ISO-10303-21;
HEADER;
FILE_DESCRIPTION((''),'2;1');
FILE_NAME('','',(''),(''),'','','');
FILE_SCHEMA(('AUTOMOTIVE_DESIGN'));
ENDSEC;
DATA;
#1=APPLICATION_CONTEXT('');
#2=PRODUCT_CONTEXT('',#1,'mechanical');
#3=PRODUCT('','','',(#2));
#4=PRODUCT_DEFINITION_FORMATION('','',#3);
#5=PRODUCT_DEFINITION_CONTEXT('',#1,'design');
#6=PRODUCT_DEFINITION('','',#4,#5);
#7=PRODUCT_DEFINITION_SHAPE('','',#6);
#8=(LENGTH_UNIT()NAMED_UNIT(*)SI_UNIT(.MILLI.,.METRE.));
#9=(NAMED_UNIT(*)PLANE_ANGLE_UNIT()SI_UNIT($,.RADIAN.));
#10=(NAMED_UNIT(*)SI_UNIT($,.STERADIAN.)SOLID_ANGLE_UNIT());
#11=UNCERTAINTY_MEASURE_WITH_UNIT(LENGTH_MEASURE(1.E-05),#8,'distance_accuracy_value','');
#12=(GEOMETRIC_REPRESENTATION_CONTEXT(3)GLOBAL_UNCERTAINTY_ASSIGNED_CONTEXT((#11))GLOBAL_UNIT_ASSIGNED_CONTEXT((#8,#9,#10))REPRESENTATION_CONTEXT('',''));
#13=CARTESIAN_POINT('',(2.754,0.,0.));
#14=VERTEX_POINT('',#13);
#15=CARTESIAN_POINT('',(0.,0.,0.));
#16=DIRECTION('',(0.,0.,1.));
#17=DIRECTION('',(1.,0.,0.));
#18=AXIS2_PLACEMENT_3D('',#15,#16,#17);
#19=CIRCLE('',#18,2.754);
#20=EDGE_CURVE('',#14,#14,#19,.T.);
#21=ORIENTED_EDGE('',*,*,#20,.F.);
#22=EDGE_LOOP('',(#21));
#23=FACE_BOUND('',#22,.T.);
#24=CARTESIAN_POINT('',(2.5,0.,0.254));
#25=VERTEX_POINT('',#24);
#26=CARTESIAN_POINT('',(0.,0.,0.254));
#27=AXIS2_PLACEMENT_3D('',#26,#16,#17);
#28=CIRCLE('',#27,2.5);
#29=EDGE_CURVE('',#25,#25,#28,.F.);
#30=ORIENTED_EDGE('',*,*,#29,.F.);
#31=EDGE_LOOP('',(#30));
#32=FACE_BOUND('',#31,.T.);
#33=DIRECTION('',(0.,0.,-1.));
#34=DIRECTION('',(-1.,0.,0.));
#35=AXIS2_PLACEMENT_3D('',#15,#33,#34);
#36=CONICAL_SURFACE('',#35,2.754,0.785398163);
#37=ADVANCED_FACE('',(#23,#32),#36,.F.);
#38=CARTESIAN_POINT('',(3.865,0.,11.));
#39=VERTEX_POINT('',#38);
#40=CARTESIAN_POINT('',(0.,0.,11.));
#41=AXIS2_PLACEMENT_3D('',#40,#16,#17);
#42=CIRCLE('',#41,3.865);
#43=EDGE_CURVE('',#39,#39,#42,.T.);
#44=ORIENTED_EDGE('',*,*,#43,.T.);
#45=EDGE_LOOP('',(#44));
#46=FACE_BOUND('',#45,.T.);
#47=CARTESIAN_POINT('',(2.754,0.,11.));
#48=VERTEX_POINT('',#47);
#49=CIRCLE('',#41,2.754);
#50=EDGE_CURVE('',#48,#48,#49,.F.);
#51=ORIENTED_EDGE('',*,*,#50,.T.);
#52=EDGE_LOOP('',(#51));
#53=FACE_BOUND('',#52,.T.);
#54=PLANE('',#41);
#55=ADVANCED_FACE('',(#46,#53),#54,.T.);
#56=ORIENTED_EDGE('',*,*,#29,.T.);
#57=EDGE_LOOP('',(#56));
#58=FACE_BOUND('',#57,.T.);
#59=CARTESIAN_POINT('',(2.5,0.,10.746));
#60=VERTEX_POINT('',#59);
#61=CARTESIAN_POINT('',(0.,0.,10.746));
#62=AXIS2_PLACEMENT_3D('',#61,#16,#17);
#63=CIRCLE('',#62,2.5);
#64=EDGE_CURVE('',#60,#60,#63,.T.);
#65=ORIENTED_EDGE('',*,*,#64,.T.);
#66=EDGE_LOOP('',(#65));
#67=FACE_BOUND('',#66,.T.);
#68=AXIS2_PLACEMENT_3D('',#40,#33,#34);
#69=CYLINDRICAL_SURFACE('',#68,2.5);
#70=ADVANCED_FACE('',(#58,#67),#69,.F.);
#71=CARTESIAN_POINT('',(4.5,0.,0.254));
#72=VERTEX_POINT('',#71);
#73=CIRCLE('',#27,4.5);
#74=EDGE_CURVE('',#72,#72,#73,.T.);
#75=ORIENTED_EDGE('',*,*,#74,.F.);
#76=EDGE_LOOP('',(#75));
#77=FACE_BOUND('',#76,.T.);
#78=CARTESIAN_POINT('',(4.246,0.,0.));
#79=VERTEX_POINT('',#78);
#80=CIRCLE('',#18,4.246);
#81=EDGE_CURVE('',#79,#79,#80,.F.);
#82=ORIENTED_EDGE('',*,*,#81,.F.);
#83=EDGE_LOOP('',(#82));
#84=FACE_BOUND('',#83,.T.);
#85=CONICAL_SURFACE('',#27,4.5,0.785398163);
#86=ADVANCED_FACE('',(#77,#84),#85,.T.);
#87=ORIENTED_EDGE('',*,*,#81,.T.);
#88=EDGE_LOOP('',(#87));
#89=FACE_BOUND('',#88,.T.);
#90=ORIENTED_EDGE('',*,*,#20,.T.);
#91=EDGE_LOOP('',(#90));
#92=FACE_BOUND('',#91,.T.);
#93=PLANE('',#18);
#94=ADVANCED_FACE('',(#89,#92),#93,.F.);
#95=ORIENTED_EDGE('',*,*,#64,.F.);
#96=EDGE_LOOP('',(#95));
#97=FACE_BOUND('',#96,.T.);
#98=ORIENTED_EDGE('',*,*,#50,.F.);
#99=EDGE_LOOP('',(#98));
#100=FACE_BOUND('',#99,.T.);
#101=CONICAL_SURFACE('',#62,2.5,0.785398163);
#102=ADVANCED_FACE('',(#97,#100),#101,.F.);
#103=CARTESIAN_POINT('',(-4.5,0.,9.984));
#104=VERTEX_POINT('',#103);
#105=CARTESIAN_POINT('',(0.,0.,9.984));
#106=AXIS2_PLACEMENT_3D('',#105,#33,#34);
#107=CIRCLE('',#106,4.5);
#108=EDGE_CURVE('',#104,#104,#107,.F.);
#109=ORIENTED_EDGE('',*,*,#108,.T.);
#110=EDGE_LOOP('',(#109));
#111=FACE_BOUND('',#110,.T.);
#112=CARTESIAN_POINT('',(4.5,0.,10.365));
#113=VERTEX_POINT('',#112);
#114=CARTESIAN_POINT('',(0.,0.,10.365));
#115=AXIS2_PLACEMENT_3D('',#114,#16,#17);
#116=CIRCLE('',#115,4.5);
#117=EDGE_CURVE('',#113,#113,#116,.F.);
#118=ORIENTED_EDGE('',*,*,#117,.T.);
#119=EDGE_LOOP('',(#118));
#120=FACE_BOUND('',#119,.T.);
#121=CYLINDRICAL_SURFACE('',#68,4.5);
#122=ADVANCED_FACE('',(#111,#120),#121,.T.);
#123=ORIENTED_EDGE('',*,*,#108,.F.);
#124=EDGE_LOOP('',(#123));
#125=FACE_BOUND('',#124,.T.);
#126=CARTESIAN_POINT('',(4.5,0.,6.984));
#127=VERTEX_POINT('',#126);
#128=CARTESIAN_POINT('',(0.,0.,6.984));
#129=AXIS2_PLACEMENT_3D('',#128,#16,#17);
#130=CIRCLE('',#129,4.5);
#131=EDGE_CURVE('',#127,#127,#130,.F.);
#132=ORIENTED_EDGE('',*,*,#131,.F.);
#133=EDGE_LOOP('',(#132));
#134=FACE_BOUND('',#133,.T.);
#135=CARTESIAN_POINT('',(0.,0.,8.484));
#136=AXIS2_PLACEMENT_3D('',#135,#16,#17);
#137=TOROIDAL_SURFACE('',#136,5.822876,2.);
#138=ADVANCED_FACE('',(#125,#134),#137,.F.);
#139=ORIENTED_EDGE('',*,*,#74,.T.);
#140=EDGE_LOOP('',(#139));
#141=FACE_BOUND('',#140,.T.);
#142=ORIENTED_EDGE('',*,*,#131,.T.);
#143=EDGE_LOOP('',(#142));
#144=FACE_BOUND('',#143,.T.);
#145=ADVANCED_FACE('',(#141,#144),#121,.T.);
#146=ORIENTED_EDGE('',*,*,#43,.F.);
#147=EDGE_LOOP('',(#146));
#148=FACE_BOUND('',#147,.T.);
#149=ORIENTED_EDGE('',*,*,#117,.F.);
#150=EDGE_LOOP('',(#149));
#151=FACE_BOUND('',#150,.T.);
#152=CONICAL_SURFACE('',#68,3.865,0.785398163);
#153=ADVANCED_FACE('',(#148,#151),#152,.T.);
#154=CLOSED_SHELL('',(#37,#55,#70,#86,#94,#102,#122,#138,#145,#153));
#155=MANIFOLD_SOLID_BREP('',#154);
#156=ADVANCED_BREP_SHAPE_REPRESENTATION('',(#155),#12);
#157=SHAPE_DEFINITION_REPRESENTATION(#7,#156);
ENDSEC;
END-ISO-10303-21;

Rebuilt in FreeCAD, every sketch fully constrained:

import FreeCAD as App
import Part
import Sketcher

V = App.Vector
Q = App.Units.Quantity


def edges_at(feature, points):
    """Names of the edges that pass closest to the given points."""
    edges = feature.Shape.Edges
    near = lambda p: min(range(len(edges)), key=lambda i: edges[i].distToShape(Part.Vertex(*p))[0])
    return sorted({f"Edge{near(p) + 1}" for p in points})

doc = App.newDocument("Part")
body = doc.addObject("PartDesign::Body", "Body")

sketch1 = body.newObject("Sketcher::SketchObject", "Sketch")
sketch1.AttachmentSupport = (doc.getObject("XY_Plane"), [""])
sketch1.MapMode = "FlatFace"
sketch1.addGeometry(Part.Circle(V(0, 0, 0), V(0, 0, 1), 4.5), False)
sketch1.addGeometry(Part.Circle(V(0, 0, 0), V(0, 0, 1), 2.5), False)
sketch1.addConstraint(Sketcher.Constraint("Coincident", 0, 3, -1, 1))
sketch1.addConstraint(Sketcher.Constraint("Coincident", 1, 3, -1, 1))
sketch1.addConstraint(Sketcher.Constraint("Diameter", 0, Q("9 mm")))
sketch1.addConstraint(Sketcher.Constraint("Diameter", 1, Q("5 mm")))
pad1 = body.newObject("PartDesign::Pad", "Pad")
pad1.Profile = sketch1
pad1.Length = 11

sketch2 = body.newObject("Sketcher::SketchObject", "Sketch001")
sketch2.AttachmentSupport = (doc.getObject("XZ_Plane"), [""])
sketch2.MapMode = "FlatFace"
sketch2.addGeometry(Part.Circle(V(-5.8, 8.5, 0), V(0, 0, 1), 2), False)
sketch2.addConstraint(Sketcher.Constraint("Diameter", 0, Q("4 mm")))
sketch2.addConstraint(Sketcher.Constraint("DistanceY", -1, 1, 0, 3, Q("8.484 mm")))
sketch2.addConstraint(Sketcher.Constraint("DistanceX", 0, 3, -1, 1, Q("5.822876 mm")))
groove = body.newObject("PartDesign::Groove", "Groove")
groove.Profile = sketch2
groove.ReferenceAxis = (sketch2, ["V_Axis"])
groove.Angle = 360
doc.recompute()

chamfer = body.newObject("PartDesign::Chamfer", "Chamfer")
chamfer.Base = (groove, edges_at(groove, [(-4.5, 0, 11)]))
chamfer.Size = 0.635
doc.recompute()

chamfer2 = body.newObject("PartDesign::Chamfer", "Chamfer001")
chamfer2.Base = (chamfer, edges_at(chamfer, [(-4.5, 0, 0), (-2.5, 0, 0), (-2.5, 0, 11)]))
chamfer2.Size = 0.254

doc.recompute()
